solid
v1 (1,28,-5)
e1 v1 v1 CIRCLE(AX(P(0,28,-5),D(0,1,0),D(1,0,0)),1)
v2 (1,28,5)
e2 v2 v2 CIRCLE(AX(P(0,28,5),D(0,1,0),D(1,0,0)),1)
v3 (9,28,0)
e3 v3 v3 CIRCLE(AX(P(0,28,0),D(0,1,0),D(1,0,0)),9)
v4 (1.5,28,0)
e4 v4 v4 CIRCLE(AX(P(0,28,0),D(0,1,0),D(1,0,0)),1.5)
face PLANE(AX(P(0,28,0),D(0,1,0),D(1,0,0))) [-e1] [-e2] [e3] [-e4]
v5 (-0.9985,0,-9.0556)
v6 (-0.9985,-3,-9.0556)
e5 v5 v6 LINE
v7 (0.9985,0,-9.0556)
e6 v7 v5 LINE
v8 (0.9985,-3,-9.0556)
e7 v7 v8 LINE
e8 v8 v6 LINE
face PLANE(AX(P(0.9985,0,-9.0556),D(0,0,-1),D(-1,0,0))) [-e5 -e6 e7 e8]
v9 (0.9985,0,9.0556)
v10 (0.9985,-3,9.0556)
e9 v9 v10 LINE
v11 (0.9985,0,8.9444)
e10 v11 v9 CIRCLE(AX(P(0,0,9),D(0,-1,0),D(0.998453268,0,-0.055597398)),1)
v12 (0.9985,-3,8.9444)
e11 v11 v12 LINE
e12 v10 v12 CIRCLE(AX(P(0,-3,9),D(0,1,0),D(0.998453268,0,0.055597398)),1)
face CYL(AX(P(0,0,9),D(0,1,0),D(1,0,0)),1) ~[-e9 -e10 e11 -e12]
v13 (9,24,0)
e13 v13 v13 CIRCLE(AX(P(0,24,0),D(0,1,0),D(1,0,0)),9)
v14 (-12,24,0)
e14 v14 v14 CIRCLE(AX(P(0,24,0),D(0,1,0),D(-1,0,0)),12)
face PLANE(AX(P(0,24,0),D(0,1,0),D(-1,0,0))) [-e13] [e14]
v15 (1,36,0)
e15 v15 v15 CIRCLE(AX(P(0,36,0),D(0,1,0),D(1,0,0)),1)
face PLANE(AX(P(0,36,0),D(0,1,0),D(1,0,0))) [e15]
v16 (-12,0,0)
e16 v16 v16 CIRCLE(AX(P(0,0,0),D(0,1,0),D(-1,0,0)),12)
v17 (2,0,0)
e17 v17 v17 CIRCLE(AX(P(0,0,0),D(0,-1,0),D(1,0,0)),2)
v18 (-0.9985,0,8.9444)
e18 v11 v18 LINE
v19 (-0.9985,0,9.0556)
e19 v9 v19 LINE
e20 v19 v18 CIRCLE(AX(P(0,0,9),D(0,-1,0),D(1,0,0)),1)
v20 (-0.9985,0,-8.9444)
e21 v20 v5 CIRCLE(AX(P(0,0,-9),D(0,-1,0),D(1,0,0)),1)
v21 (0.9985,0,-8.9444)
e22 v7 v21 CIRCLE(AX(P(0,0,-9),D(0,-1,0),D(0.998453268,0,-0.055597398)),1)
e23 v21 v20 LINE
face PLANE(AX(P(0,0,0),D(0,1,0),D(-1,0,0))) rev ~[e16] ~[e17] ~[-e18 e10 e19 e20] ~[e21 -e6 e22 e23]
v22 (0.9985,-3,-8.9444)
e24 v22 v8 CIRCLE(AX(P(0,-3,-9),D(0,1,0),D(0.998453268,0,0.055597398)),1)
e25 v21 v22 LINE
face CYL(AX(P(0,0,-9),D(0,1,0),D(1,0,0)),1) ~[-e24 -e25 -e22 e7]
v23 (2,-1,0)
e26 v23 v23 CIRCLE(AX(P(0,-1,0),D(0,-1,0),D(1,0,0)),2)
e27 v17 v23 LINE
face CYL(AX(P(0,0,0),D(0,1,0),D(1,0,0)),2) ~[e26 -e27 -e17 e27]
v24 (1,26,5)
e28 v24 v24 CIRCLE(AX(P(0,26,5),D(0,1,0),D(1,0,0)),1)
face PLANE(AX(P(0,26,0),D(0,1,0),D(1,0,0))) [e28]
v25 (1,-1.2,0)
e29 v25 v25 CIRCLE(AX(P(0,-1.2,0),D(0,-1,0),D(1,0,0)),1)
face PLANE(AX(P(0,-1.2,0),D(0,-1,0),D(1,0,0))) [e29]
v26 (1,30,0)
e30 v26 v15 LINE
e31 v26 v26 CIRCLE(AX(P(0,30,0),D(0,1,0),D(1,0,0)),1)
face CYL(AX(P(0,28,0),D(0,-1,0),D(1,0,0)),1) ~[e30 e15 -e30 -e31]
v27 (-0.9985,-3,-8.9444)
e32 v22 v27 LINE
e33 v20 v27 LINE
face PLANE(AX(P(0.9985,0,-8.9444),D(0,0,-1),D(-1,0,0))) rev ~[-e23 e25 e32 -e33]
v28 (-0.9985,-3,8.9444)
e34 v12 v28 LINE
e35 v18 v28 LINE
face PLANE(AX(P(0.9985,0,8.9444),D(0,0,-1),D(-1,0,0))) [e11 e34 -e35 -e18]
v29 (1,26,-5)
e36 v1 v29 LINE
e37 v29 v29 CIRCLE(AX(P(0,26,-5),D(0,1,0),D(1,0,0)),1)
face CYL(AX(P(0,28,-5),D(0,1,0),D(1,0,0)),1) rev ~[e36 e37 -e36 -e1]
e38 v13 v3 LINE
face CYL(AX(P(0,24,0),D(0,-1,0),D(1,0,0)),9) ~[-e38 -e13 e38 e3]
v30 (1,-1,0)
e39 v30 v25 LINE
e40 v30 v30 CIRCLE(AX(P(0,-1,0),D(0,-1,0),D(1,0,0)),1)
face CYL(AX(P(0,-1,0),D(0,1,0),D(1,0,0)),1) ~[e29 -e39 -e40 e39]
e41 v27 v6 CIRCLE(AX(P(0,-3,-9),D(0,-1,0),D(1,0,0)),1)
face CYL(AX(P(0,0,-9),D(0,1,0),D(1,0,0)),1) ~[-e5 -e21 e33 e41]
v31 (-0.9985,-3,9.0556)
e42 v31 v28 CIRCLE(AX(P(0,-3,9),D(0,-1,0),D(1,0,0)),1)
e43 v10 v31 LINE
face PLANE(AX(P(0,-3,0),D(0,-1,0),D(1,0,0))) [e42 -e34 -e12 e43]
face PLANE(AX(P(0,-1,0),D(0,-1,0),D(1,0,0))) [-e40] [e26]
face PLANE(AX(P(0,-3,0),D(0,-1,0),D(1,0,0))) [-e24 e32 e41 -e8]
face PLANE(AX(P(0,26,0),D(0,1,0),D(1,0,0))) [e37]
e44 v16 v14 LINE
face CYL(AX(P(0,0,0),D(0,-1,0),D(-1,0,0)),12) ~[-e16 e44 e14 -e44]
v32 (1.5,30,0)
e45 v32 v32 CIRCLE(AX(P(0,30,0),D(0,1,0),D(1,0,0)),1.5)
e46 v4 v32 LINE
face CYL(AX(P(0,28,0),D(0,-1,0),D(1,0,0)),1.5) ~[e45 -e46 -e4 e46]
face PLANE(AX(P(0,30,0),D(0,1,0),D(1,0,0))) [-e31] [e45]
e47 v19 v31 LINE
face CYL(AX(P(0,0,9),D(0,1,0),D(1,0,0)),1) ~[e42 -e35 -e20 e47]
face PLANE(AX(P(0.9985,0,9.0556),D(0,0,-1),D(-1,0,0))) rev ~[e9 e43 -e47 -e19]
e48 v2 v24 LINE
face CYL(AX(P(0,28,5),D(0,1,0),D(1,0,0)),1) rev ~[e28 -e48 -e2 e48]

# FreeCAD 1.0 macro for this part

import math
import FreeCAD as App
import Part
import Sketcher

doc = App.newDocument("Part")
body = doc.addObject("PartDesign::Body", "Body")

sketch1 = doc.addObject("Sketcher::SketchObject", "Sketch")
body.addObject(sketch1)
sketch1.AttachmentSupport = (doc.XZ_Plane, [""])
sketch1.MapMode = "FlatFace"
sketch1.addGeometry(Part.Circle(App.Vector(0, 0, 0), App.Vector(0, 0, 1), 12), False)
sketch1.addConstraint([
    Sketcher.Constraint("Coincident", 0, 3, -1, 1),
    Sketcher.Constraint("Diameter", 0, 24.0),
])
pad1 = doc.addObject("PartDesign::Pad", "Pad")
body.addObject(pad1)
pad1.Profile = sketch1
pad1.Length = 24
pad1.Reversed = True

sketch2 = doc.addObject("Sketcher::SketchObject", "Sketch001")
body.addObject(sketch2)
sketch2.AttachmentSupport = (doc.XZ_Plane, [""])
sketch2.MapMode = "FlatFace"
sketch2.AttachmentOffset = App.Placement(App.Vector(0, 0, -24), App.Rotation())
sketch2.addGeometry(Part.Circle(App.Vector(0, 0, 0), App.Vector(0, 0, 1), 9), False)
sketch2.addConstraint([
    Sketcher.Constraint("Coincident", 0, 3, -1, 1),
    Sketcher.Constraint("Diameter", 0, 18.0),
])
pad2 = doc.addObject("PartDesign::Pad", "Pad001")
body.addObject(pad2)
pad2.Profile = sketch2
pad2.Length = 4
pad2.Reversed = True

sketch3 = doc.addObject("Sketcher::SketchObject", "Sketch002")
body.addObject(sketch3)
sketch3.AttachmentSupport = (doc.XZ_Plane, [""])
sketch3.MapMode = "FlatFace"
sketch3.AttachmentOffset = App.Placement(App.Vector(0, 0, -28), App.Rotation())
sketch3.addGeometry([
    Part.Circle(App.Vector(0, 0, 0), App.Vector(0, 0, 1), 1.5),
    Part.Circle(App.Vector(0, 0, 0), App.Vector(0, 0, 1), 1),
], False)
sketch3.addConstraint([
    Sketcher.Constraint("Coincident", 0, 3, -1, 1),
    Sketcher.Constraint("Coincident", 1, 3, -1, 1),
    Sketcher.Constraint("Diameter", 0, 3.0),
    Sketcher.Constraint("Diameter", 1, 2.0),
])
pad3 = doc.addObject("PartDesign::Pad", "Pad002")
body.addObject(pad3)
pad3.Profile = sketch3
pad3.Length = 2
pad3.Reversed = True

sketch4 = doc.addObject("Sketcher::SketchObject", "Sketch003")
body.addObject(sketch4)
sketch4.AttachmentSupport = (doc.XZ_Plane, [""])
sketch4.MapMode = "FlatFace"
sketch4.AttachmentOffset = App.Placement(App.Vector(0, 0, -28), App.Rotation())
sketch4.addGeometry(Part.Circle(App.Vector(0, 0, 0), App.Vector(0, 0, 1), 1), False)
sketch4.addConstraint([
    Sketcher.Constraint("Coincident", 0, 3, -1, 1),
    Sketcher.Constraint("Diameter", 0, 2.0),
])
pad4 = doc.addObject("PartDesign::Pad", "Pad003")
body.addObject(pad4)
pad4.Profile = sketch4
pad4.Length = 8
pad4.Reversed = True

sketch5 = doc.addObject("Sketcher::SketchObject", "Sketch004")
body.addObject(sketch5)
sketch5.AttachmentSupport = (doc.XZ_Plane, [""])
sketch5.MapMode = "FlatFace"
sketch5.addGeometry([
    Part.LineSegment(App.Vector(-1, 8.94, 0), App.Vector(1, 8.94, 0)),
    Part.ArcOfCircle(Part.Circle(App.Vector(0, 9, 0), App.Vector(0, 0, 1), 1), math.radians(-3.19), math.radians(3.19)),
    Part.LineSegment(App.Vector(1, 9.06, 0), App.Vector(-1, 9.06, 0)),
    Part.ArcOfCircle(Part.Circle(App.Vector(0, 9, 0), App.Vector(0, 0, 1), 1), math.radians(176.81), math.radians(183.19)),
    Part.LineSegment(App.Vector(1, -8.94, 0), App.Vector(-1, -8.94, 0)),
    Part.ArcOfCircle(Part.Circle(App.Vector(0, -9, 0), App.Vector(0, 0, 1), 1), math.radians(176.81), math.radians(183.19)),
    Part.LineSegment(App.Vector(-1, -9.06, 0), App.Vector(1, -9.06, 0)),
    Part.ArcOfCircle(Part.Circle(App.Vector(0, -9, 0), App.Vector(0, 0, 1), 1), math.radians(-3.19), math.radians(3.19)),
], False)
sketch5.addConstraint([
    Sketcher.Constraint("Coincident", 0, 2, 1, 1),
    Sketcher.Constraint("Coincident", 1, 2, 2, 1),
    Sketcher.Constraint("Coincident", 2, 2, 3, 1),
    Sketcher.Constraint("Coincident", 3, 2, 0, 1),
    Sketcher.Constraint("Coincident", 4, 2, 5, 1),
    Sketcher.Constraint("Coincident", 5, 2, 6, 1),
    Sketcher.Constraint("Coincident", 6, 2, 7, 1),
    Sketcher.Constraint("Coincident", 7, 2, 4, 1),
    Sketcher.Constraint("Horizontal", 0),
    Sketcher.Constraint("Horizontal", 2),
    Sketcher.Constraint("Horizontal", 4),
    Sketcher.Constraint("Horizontal", 6),
    Sketcher.Constraint("Coincident", 3, 3, 1, 3),
    Sketcher.Constraint("Coincident", 7, 3, 5, 3),
    Sketcher.Constraint("Equal", 1, 3),
    Sketcher.Constraint("Equal", 3, 5),
    Sketcher.Constraint("Equal", 5, 7),
    Sketcher.Constraint("Symmetric", 1, 3, 5, 3, -1, 1),
    Sketcher.Constraint("Symmetric", 3, 2, 4, 2, -1),
    Sketcher.Constraint("Vertical", 0, 2, 1, 2),
    Sketcher.Constraint("Vertical", 4, 2, 5, 2),
    Sketcher.Constraint("Radius", 1, 1.0),
    Sketcher.Constraint("DistanceY", -1, 1, 1, 3, 9.0),
    Sketcher.Constraint("DistanceX", 0, 1, 0, 2, 1.997),
])
pad5 = doc.addObject("PartDesign::Pad", "Pad004")
body.addObject(pad5)
pad5.Profile = sketch5
pad5.Length = 3

sketch6 = doc.addObject("Sketcher::SketchObject", "Sketch005")
body.addObject(sketch6)
sketch6.AttachmentSupport = (doc.XZ_Plane, [""])
sketch6.MapMode = "FlatFace"
sketch6.addGeometry(Part.Circle(App.Vector(0, 0, 0), App.Vector(0, 0, 1), 2), False)
sketch6.addConstraint([
    Sketcher.Constraint("Coincident", 0, 3, -1, 1),
    Sketcher.Constraint("Diameter", 0, 4.0),
])
pad6 = doc.addObject("PartDesign::Pad", "Pad005")
body.addObject(pad6)
pad6.Profile = sketch6
pad6.Length = 1

sketch7 = doc.addObject("Sketcher::SketchObject", "Sketch006")
body.addObject(sketch7)
sketch7.AttachmentSupport = (doc.XZ_Plane, [""])
sketch7.MapMode = "FlatFace"
sketch7.AttachmentOffset = App.Placement(App.Vector(0, 0, 1), App.Rotation())
sketch7.addGeometry(Part.Circle(App.Vector(0, 0, 0), App.Vector(0, 0, 1), 1), False)
sketch7.addConstraint([
    Sketcher.Constraint("Coincident", 0, 3, -1, 1),
    Sketcher.Constraint("Diameter", 0, 2.0),
])
pad7 = doc.addObject("PartDesign::Pad", "Pad006")
body.addObject(pad7)
pad7.Profile = sketch7
pad7.Length = 0.2

sketch8 = doc.addObject("Sketcher::SketchObject", "Sketch007")
body.addObject(sketch8)
sketch8.AttachmentSupport = (doc.XZ_Plane, [""])
sketch8.MapMode = "FlatFace"
sketch8.AttachmentOffset = App.Placement(App.Vector(0, 0, -28), App.Rotation())
sketch8.addGeometry([
    Part.Circle(App.Vector(0, -5, 0), App.Vector(0, 0, 1), 1),
    Part.Circle(App.Vector(0, 5, 0), App.Vector(0, 0, 1), 1),
], False)
sketch8.addConstraint([
    Sketcher.Constraint("Equal", 0, 1),
    Sketcher.Constraint("Symmetric", 0, 3, 1, 3, -1, 1),
    Sketcher.Constraint("PointOnObject", 0, 3, -2),
    Sketcher.Constraint("Diameter", 0, 2.0),
    Sketcher.Constraint("DistanceY", 0, 3, -1, 1, 5.0),
])
pocket1 = doc.addObject("PartDesign::Pocket", "Pocket")
body.addObject(pocket1)
pocket1.Profile = sketch8
pocket1.Length = 2
pocket1.Reversed = True

doc.recompute()
